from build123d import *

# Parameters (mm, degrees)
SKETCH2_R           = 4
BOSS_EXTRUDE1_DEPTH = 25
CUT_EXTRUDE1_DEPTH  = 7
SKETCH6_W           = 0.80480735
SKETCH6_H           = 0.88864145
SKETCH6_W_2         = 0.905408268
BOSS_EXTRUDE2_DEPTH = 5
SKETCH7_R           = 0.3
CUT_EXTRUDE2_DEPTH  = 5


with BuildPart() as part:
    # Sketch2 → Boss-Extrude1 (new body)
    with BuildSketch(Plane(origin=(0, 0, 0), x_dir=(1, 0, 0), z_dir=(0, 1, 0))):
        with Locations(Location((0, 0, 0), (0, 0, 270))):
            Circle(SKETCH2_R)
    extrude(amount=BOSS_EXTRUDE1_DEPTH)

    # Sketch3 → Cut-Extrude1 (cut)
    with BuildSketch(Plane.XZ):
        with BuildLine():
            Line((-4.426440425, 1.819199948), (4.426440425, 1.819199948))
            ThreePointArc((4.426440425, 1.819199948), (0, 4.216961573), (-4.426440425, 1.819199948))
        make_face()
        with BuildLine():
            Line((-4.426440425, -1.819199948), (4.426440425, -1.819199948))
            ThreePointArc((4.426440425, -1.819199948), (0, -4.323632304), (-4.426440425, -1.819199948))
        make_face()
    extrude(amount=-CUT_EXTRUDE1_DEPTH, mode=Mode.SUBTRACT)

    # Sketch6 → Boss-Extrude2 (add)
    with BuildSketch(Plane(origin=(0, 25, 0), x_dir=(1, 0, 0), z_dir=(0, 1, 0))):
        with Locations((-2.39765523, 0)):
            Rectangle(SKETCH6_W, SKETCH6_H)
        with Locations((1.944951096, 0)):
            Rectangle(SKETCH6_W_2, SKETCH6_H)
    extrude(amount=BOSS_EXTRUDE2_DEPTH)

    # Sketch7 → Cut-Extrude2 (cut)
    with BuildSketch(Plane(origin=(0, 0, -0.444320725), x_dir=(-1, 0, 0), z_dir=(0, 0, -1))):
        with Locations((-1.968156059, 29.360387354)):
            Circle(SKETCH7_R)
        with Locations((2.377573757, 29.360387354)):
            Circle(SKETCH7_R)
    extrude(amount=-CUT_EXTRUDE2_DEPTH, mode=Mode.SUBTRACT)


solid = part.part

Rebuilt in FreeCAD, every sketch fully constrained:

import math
import FreeCAD as App
import Part
import Sketcher


def add_polygon(sketch, points):
    """Adds a closed chain of lines whose ends are joined by coincident constraints."""
    first, n = sketch.GeometryCount, len(points)
    for a, b in zip(points, points[1:] + points[:1]):
        sketch.addGeometry(Part.LineSegment(App.Vector(*a, 0), App.Vector(*b, 0)), False)
    for i in range(n):
        sketch.addConstraint(Sketcher.Constraint("Coincident", first + i, 2, first + (i + 1) % n, 1))

doc = App.newDocument("Part")
params = doc.addObject("Spreadsheet::Sheet", "Params")
for row, (alias, value) in enumerate([
    ("sketch1_diameter", "8 mm"),
    ("pad1_length", "25 mm"),
    ("pocket1_length", "7 mm"),
    ("pad2_length", "5 mm"),
    ("sketch4_diameter", "0.6 mm"),
    ("pocket2_length", "5 mm"),
], start=1):
    params.set(f"A{row}", alias)
    params.set(f"B{row}", "=" + value)
    params.setAlias(f"B{row}", alias)

body = doc.addObject("PartDesign::Body", "Body")

# Sketch on XZ plane
sketch1 = doc.addObject("Sketcher::SketchObject", "Sketch")
body.addObject(sketch1)
sketch1.AttachmentSupport = (doc.XZ_Plane, [""])
sketch1.MapMode = "FlatFace"
sketch1.addGeometry(Part.Circle(App.Vector(0, 0, 0), App.Vector(0, 0, 1), 4), False)
sketch1.addConstraint(Sketcher.Constraint("Coincident", 0, 3, -1, 1))
sketch1.addConstraint(Sketcher.Constraint("Diameter", 0, 8.0))
sketch1.setExpression("Constraints[1]", "Params.sketch1_diameter")
pad1 = doc.addObject("PartDesign::Pad", "Pad")
body.addObject(pad1)
pad1.Profile = sketch1
pad1.setExpression("Length", "Params.pad1_length")
pad1.Reversed = True

# Sketch on XZ plane
sketch2 = doc.addObject("Sketcher::SketchObject", "Sketch001")
body.addObject(sketch2)
sketch2.AttachmentSupport = (doc.XZ_Plane, [""])
sketch2.MapMode = "FlatFace"
sketch2.addGeometry(Part.LineSegment(App.Vector(-4, 2, 0), App.Vector(4, 2, 0)), False)
sketch2.addGeometry(Part.ArcOfCircle(Part.Circle(App.Vector(0, -1, 0), App.Vector(0, 0, 1), 5), math.radians(33), math.radians(147)), False)
sketch2.addGeometry(Part.LineSegment(App.Vector(4, -2, 0), App.Vector(-4, -2, 0)), False)
sketch2.addGeometry(Part.ArcOfCircle(Part.Circle(App.Vector(0, 1, 0), App.Vector(0, 0, 1), 5), math.radians(-149), math.radians(-31)), False)
sketch2.addConstraint(Sketcher.Constraint("Coincident", 0, 1, 1, 2))
sketch2.addConstraint(Sketcher.Constraint("Coincident", 1, 1, 0, 2))
sketch2.addConstraint(Sketcher.Constraint("Coincident", 2, 1, 3, 2))
sketch2.addConstraint(Sketcher.Constraint("Coincident", 3, 1, 2, 2))
sketch2.addConstraint(Sketcher.Constraint("Horizontal", 0))
sketch2.addConstraint(Sketcher.Constraint("Horizontal", 2))
sketch2.addConstraint(Sketcher.Constraint("Symmetric", 0, 1, 2, 1, -1, 1))
sketch2.addConstraint(Sketcher.Constraint("PointOnObject", 1, 3, -2))
sketch2.addConstraint(Sketcher.Constraint("PointOnObject", 3, 3, -2))
sketch2.addConstraint(Sketcher.Constraint("Radius", 1, 5.284645))
sketch2.addConstraint(Sketcher.Constraint("Radius", 3, 5.163956))
sketch2.addConstraint(Sketcher.Constraint("DistanceX", 0, 1, 0, 2, 8.852881))
sketch2.addConstraint(Sketcher.Constraint("DistanceY", -1, 1, 0, 1, 1.8192))
pocket1 = doc.addObject("PartDesign::Pocket", "Pocket")
body.addObject(pocket1)
pocket1.Profile = sketch2
pocket1.setExpression("Length", "Params.pocket1_length")

# Sketch on XZ plane
sketch3 = doc.addObject("Sketcher::SketchObject", "Sketch002")
body.addObject(sketch3)
sketch3.AttachmentSupport = (doc.XZ_Plane, [""])
sketch3.MapMode = "FlatFace"
sketch3.AttachmentOffset = App.Placement(App.Vector(0, 0, -25), App.Rotation())
add_polygon(sketch3, [(-2.8, -0.4), (-2.8, 0.4), (-2, 0.4), (-2, -0.4)])  # lines 0-3
add_polygon(sketch3, [(1.5, -0.4), (1.5, 0.4), (2.4, 0.4), (2.4, -0.4)])  # lines 4-7
sketch3.addConstraint(Sketcher.Constraint("Vertical", 0))
sketch3.addConstraint(Sketcher.Constraint("Horizontal", 1))
sketch3.addConstraint(Sketcher.Constraint("Vertical", 2))
sketch3.addConstraint(Sketcher.Constraint("Horizontal", 3))
sketch3.addConstraint(Sketcher.Constraint("Vertical", 4))
sketch3.addConstraint(Sketcher.Constraint("Horizontal", 5))
sketch3.addConstraint(Sketcher.Constraint("Vertical", 6))
sketch3.addConstraint(Sketcher.Constraint("Horizontal", 7))
sketch3.addConstraint(Sketcher.Constraint("Horizontal", 1, 2, 4, 2))
sketch3.addConstraint(Sketcher.Constraint("Horizontal", 3, 2, 6, 2))
sketch3.addConstraint(Sketcher.Constraint("DistanceX", 5, 1, 5, 2, 0.905408))
sketch3.addConstraint(Sketcher.Constraint("DistanceY", 0, 1, 0, 2, 0.888641))
sketch3.addConstraint(Sketcher.Constraint("DistanceX", 1, 2, 4, 2, 3.487499))
sketch3.addConstraint(Sketcher.Constraint("DistanceX", 1, 1, 1, 2, 0.804807))
sketch3.addConstraint(Sketcher.Constraint("DistanceX", 0, 2, -1, 1, 2.800059))
sketch3.addConstraint(Sketcher.Constraint("DistanceY", -1, 1, 0, 2, 0.444321))
pad2 = doc.addObject("PartDesign::Pad", "Pad001")
body.addObject(pad2)
pad2.Profile = sketch3
pad2.setExpression("Length", "Params.pad2_length")
pad2.Reversed = True

# Sketch on XY plane
sketch4 = doc.addObject("Sketcher::SketchObject", "Sketch003")
body.addObject(sketch4)
sketch4.AttachmentSupport = (doc.XY_Plane, [""])
sketch4.MapMode = "FlatFace"
sketch4.AttachmentOffset = App.Placement(App.Vector(0, 0, -0.444321), App.Rotation())
sketch4.addGeometry(Part.Circle(App.Vector(1.97, 29.36, 0), App.Vector(0, 0, 1), 0.3), False)
sketch4.addGeometry(Part.Circle(App.Vector(-2.38, 29.36, 0), App.Vector(0, 0, 1), 0.3), False)
sketch4.addConstraint(Sketcher.Constraint("Equal", 0, 1))
sketch4.addConstraint(Sketcher.Constraint("Horizontal", 0, 3, 1, 3))
sketch4.addConstraint(Sketcher.Constraint("Diameter", 0, 0.6))
sketch4.addConstraint(Sketcher.Constraint("DistanceX", 1, 3, 0, 3, 4.34573))
sketch4.addConstraint(Sketcher.Constraint("DistanceX", -1, 1, 0, 3, 1.968156))
sketch4.addConstraint(Sketcher.Constraint("DistanceY", -1, 1, 0, 3, 29.360387))
sketch4.setExpression("Constraints[2]", "Params.sketch4_diameter")
pocket2 = doc.addObject("PartDesign::Pocket", "Pocket001")
body.addObject(pocket2)
pocket2.Profile = sketch4
pocket2.setExpression("Length", "Params.pocket2_length")
pocket2.Reversed = True

doc.recompute()
